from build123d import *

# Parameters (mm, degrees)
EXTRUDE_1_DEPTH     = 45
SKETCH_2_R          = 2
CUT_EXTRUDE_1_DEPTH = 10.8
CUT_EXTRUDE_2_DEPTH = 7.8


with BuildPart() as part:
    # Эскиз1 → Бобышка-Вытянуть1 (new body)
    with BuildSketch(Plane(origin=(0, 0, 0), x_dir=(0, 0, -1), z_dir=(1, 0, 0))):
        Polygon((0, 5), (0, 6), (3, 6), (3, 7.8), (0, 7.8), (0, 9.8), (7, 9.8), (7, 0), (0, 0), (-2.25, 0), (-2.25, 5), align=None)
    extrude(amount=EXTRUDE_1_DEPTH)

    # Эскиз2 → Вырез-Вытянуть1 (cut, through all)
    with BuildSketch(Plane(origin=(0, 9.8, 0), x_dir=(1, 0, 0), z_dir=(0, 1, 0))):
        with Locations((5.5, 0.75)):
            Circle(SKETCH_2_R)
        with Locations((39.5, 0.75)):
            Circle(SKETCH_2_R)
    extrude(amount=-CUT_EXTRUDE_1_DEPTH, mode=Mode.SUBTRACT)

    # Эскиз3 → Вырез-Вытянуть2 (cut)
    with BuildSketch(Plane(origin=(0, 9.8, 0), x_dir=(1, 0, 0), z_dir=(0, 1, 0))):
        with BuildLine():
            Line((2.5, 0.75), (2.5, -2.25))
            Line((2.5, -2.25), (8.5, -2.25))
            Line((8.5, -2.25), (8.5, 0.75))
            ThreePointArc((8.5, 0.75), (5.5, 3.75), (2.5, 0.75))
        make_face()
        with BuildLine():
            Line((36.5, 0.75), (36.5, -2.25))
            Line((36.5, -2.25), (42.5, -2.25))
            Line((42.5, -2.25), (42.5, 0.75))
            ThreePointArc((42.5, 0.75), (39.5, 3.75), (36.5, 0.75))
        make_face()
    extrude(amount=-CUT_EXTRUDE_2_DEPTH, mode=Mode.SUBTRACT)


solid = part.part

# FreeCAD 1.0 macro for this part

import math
import FreeCAD as App
import Part
import Sketcher

V = App.Vector
Q = App.Units.Quantity

doc = App.newDocument("Part")
body = doc.addObject("PartDesign::Body", "Body")

# Sketch on YZ plane
sketch1 = body.newObject("Sketcher::SketchObject", "Sketch")
sketch1.AttachmentSupport = (doc.getObject("YZ_Plane"), [""])
sketch1.MapMode = "FlatFace"
sketch1.addGeometry([
    Part.LineSegment(V(6, 0, 0), V(5, 0, 0)),  # 0
    Part.LineSegment(V(5, 0, 0), V(5, 2.2, 0)),  # 1
    Part.LineSegment(V(5, 2.2, 0), V(0, 2.2, 0)),  # 2
    Part.LineSegment(V(0, 2.2, 0), V(0, -7, 0)),  # 3
    Part.LineSegment(V(0, -7, 0), V(9.8, -7, 0)),  # 4
    Part.LineSegment(V(9.8, -7, 0), V(9.8, 0, 0)),  # 5
    Part.LineSegment(V(9.8, 0, 0), V(7.8, 0, 0)),  # 6
    Part.LineSegment(V(7.8, 0, 0), V(7.8, -3, 0)),  # 7
    Part.LineSegment(V(7.8, -3, 0), V(6, -3, 0)),  # 8
    Part.LineSegment(V(6, -3, 0), V(6, 0, 0)),  # 9
], False)
sketch1.addConstraint([
    Sketcher.Constraint("Coincident", 0, 2, 1, 1),
    Sketcher.Constraint("Coincident", 1, 2, 2, 1),
    Sketcher.Constraint("Coincident", 2, 2, 3, 1),
    Sketcher.Constraint("Coincident", 3, 2, 4, 1),
    Sketcher.Constraint("Coincident", 4, 2, 5, 1),
    Sketcher.Constraint("Coincident", 5, 2, 6, 1),
    Sketcher.Constraint("Coincident", 6, 2, 7, 1),
    Sketcher.Constraint("Coincident", 7, 2, 8, 1),
    Sketcher.Constraint("Coincident", 8, 2, 9, 1),
    Sketcher.Constraint("Coincident", 9, 2, 0, 1),
    Sketcher.Constraint("Horizontal", 0),
    Sketcher.Constraint("Vertical", 1),
    Sketcher.Constraint("Horizontal", 2),
    Sketcher.Constraint("Vertical", 3),
    Sketcher.Constraint("Horizontal", 4),
    Sketcher.Constraint("Vertical", 5),
    Sketcher.Constraint("Horizontal", 6),
    Sketcher.Constraint("Vertical", 7),
    Sketcher.Constraint("Horizontal", 8),
    Sketcher.Constraint("Vertical", 9),
    Sketcher.Constraint("PointOnObject", 0, 2, -1),
    Sketcher.Constraint("PointOnObject", 2, 2, -2),
    Sketcher.Constraint("PointOnObject", 5, 2, -1),
    Sketcher.Constraint("DistanceX", 0, 2, 0, 1, Q("1 mm")),
    Sketcher.Constraint("DistanceX", 2, 2, 2, 1, Q("5 mm")),
    Sketcher.Constraint("DistanceX", 6, 2, 6, 1, Q("2 mm")),
    Sketcher.Constraint("DistanceY", 5, 1, 5, 2, Q("7 mm")),
    Sketcher.Constraint("DistanceY", 7, 2, 7, 1, Q("3 mm")),
    Sketcher.Constraint("DistanceX", 4, 1, 4, 2, Q("9.8 mm")),
    Sketcher.Constraint("DistanceY", 1, 1, 1, 2, Q("2.25 mm")),
])
pad1 = body.newObject("PartDesign::Pad", "Pad")
pad1.Profile = sketch1
pad1.Length = 45

# Sketch on XZ plane
sketch2 = body.newObject("Sketcher::SketchObject", "Sketch001")
sketch2.AttachmentSupport = (doc.getObject("XZ_Plane"), [""])
sketch2.MapMode = "FlatFace"
sketch2.AttachmentOffset = App.Placement(V(0, 0, -9.8), App.Rotation())
sketch2.addGeometry([
    Part.Circle(V(5.5, -0.8, 0), V(0, 0, 1), 2),
    Part.Circle(V(39.5, -0.8, 0), V(0, 0, 1), 2),
], False)
sketch2.addConstraint([
    Sketcher.Constraint("Equal", 0, 1),
    Sketcher.Constraint("Horizontal", 0, 3, 1, 3),
    Sketcher.Constraint("Diameter", 0, Q("4 mm")),
    Sketcher.Constraint("DistanceX", 0, 3, 1, 3, Q("34 mm")),
    Sketcher.Constraint("DistanceX", -1, 1, 0, 3, Q("5.5 mm")),
    Sketcher.Constraint("DistanceY", 0, 3, -1, 1, Q("0.75 mm")),
])
pocket1 = body.newObject("PartDesign::Pocket", "Pocket")
pocket1.Profile = sketch2
pocket1.Type = "ThroughAll"
pocket1.Reversed = True

# Sketch on XZ plane
sketch3 = body.newObject("Sketcher::SketchObject", "Sketch002")
sketch3.AttachmentSupport = (doc.getObject("XZ_Plane"), [""])
sketch3.MapMode = "FlatFace"
sketch3.AttachmentOffset = App.Placement(V(0, 0, -9.8), App.Rotation())
sketch3.addGeometry([
    Part.LineSegment(V(2.5, -0.8, 0), V(2.5, 2.2, 0)),  # 0
    Part.LineSegment(V(2.5, 2.2, 0), V(8.5, 2.2, 0)),  # 1
    Part.LineSegment(V(8.5, 2.2, 0), V(8.5, -0.8, 0)),  # 2
    Part.ArcOfCircle(Part.Circle(V(5.5, -0.8, 0), V(0, 0, 1), 3), math.radians(180), math.radians(360)),  # 3
    Part.LineSegment(V(36.5, -0.8, 0), V(36.5, 2.2, 0)),  # 4
    Part.LineSegment(V(36.5, 2.2, 0), V(42.5, 2.2, 0)),  # 5
    Part.LineSegment(V(42.5, 2.2, 0), V(42.5, -0.8, 0)),  # 6
    Part.ArcOfCircle(Part.Circle(V(39.5, -0.8, 0), V(0, 0, 1), 3), math.radians(180), math.radians(360)),  # 7
], False)
sketch3.addConstraint([
    Sketcher.Constraint("Coincident", 0, 2, 1, 1),
    Sketcher.Constraint("Coincident", 1, 2, 2, 1),
    Sketcher.Constraint("Tangent", 2, 2, 3, 2),
    Sketcher.Constraint("Tangent", 3, 1, 0, 1),
    Sketcher.Constraint("Coincident", 4, 2, 5, 1),
    Sketcher.Constraint("Coincident", 5, 2, 6, 1),
    Sketcher.Constraint("Tangent", 6, 2, 7, 2),
    Sketcher.Constraint("Tangent", 7, 1, 4, 1),
    Sketcher.Constraint("Vertical", 0),
    Sketcher.Constraint("Horizontal", 1),
    Sketcher.Constraint("Vertical", 2),
    Sketcher.Constraint("Vertical", 4),
    Sketcher.Constraint("Horizontal", 5),
    Sketcher.Constraint("Vertical", 6),
    Sketcher.Constraint("Equal", 3, 7),
    Sketcher.Constraint("Horizontal", 3, 3, 7, 3),
    Sketcher.Constraint("Horizontal", 1, 2, 4, 2),
    Sketcher.Constraint("Radius", 3, Q("3 mm")),
    Sketcher.Constraint("DistanceY", 0, 1, 0, 2, Q("3 mm")),
    Sketcher.Constraint("DistanceX", 3, 3, 7, 3, Q("34 mm")),
    Sketcher.Constraint("DistanceX", -1, 1, 3, 3, Q("5.5 mm")),
    Sketcher.Constraint("DistanceY", 3, 3, -1, 1, Q("0.75 mm")),
])
pocket2 = body.newObject("PartDesign::Pocket", "Pocket001")
pocket2.Profile = sketch3
pocket2.Length = 7.8
pocket2.Reversed = True

doc.recompute()
